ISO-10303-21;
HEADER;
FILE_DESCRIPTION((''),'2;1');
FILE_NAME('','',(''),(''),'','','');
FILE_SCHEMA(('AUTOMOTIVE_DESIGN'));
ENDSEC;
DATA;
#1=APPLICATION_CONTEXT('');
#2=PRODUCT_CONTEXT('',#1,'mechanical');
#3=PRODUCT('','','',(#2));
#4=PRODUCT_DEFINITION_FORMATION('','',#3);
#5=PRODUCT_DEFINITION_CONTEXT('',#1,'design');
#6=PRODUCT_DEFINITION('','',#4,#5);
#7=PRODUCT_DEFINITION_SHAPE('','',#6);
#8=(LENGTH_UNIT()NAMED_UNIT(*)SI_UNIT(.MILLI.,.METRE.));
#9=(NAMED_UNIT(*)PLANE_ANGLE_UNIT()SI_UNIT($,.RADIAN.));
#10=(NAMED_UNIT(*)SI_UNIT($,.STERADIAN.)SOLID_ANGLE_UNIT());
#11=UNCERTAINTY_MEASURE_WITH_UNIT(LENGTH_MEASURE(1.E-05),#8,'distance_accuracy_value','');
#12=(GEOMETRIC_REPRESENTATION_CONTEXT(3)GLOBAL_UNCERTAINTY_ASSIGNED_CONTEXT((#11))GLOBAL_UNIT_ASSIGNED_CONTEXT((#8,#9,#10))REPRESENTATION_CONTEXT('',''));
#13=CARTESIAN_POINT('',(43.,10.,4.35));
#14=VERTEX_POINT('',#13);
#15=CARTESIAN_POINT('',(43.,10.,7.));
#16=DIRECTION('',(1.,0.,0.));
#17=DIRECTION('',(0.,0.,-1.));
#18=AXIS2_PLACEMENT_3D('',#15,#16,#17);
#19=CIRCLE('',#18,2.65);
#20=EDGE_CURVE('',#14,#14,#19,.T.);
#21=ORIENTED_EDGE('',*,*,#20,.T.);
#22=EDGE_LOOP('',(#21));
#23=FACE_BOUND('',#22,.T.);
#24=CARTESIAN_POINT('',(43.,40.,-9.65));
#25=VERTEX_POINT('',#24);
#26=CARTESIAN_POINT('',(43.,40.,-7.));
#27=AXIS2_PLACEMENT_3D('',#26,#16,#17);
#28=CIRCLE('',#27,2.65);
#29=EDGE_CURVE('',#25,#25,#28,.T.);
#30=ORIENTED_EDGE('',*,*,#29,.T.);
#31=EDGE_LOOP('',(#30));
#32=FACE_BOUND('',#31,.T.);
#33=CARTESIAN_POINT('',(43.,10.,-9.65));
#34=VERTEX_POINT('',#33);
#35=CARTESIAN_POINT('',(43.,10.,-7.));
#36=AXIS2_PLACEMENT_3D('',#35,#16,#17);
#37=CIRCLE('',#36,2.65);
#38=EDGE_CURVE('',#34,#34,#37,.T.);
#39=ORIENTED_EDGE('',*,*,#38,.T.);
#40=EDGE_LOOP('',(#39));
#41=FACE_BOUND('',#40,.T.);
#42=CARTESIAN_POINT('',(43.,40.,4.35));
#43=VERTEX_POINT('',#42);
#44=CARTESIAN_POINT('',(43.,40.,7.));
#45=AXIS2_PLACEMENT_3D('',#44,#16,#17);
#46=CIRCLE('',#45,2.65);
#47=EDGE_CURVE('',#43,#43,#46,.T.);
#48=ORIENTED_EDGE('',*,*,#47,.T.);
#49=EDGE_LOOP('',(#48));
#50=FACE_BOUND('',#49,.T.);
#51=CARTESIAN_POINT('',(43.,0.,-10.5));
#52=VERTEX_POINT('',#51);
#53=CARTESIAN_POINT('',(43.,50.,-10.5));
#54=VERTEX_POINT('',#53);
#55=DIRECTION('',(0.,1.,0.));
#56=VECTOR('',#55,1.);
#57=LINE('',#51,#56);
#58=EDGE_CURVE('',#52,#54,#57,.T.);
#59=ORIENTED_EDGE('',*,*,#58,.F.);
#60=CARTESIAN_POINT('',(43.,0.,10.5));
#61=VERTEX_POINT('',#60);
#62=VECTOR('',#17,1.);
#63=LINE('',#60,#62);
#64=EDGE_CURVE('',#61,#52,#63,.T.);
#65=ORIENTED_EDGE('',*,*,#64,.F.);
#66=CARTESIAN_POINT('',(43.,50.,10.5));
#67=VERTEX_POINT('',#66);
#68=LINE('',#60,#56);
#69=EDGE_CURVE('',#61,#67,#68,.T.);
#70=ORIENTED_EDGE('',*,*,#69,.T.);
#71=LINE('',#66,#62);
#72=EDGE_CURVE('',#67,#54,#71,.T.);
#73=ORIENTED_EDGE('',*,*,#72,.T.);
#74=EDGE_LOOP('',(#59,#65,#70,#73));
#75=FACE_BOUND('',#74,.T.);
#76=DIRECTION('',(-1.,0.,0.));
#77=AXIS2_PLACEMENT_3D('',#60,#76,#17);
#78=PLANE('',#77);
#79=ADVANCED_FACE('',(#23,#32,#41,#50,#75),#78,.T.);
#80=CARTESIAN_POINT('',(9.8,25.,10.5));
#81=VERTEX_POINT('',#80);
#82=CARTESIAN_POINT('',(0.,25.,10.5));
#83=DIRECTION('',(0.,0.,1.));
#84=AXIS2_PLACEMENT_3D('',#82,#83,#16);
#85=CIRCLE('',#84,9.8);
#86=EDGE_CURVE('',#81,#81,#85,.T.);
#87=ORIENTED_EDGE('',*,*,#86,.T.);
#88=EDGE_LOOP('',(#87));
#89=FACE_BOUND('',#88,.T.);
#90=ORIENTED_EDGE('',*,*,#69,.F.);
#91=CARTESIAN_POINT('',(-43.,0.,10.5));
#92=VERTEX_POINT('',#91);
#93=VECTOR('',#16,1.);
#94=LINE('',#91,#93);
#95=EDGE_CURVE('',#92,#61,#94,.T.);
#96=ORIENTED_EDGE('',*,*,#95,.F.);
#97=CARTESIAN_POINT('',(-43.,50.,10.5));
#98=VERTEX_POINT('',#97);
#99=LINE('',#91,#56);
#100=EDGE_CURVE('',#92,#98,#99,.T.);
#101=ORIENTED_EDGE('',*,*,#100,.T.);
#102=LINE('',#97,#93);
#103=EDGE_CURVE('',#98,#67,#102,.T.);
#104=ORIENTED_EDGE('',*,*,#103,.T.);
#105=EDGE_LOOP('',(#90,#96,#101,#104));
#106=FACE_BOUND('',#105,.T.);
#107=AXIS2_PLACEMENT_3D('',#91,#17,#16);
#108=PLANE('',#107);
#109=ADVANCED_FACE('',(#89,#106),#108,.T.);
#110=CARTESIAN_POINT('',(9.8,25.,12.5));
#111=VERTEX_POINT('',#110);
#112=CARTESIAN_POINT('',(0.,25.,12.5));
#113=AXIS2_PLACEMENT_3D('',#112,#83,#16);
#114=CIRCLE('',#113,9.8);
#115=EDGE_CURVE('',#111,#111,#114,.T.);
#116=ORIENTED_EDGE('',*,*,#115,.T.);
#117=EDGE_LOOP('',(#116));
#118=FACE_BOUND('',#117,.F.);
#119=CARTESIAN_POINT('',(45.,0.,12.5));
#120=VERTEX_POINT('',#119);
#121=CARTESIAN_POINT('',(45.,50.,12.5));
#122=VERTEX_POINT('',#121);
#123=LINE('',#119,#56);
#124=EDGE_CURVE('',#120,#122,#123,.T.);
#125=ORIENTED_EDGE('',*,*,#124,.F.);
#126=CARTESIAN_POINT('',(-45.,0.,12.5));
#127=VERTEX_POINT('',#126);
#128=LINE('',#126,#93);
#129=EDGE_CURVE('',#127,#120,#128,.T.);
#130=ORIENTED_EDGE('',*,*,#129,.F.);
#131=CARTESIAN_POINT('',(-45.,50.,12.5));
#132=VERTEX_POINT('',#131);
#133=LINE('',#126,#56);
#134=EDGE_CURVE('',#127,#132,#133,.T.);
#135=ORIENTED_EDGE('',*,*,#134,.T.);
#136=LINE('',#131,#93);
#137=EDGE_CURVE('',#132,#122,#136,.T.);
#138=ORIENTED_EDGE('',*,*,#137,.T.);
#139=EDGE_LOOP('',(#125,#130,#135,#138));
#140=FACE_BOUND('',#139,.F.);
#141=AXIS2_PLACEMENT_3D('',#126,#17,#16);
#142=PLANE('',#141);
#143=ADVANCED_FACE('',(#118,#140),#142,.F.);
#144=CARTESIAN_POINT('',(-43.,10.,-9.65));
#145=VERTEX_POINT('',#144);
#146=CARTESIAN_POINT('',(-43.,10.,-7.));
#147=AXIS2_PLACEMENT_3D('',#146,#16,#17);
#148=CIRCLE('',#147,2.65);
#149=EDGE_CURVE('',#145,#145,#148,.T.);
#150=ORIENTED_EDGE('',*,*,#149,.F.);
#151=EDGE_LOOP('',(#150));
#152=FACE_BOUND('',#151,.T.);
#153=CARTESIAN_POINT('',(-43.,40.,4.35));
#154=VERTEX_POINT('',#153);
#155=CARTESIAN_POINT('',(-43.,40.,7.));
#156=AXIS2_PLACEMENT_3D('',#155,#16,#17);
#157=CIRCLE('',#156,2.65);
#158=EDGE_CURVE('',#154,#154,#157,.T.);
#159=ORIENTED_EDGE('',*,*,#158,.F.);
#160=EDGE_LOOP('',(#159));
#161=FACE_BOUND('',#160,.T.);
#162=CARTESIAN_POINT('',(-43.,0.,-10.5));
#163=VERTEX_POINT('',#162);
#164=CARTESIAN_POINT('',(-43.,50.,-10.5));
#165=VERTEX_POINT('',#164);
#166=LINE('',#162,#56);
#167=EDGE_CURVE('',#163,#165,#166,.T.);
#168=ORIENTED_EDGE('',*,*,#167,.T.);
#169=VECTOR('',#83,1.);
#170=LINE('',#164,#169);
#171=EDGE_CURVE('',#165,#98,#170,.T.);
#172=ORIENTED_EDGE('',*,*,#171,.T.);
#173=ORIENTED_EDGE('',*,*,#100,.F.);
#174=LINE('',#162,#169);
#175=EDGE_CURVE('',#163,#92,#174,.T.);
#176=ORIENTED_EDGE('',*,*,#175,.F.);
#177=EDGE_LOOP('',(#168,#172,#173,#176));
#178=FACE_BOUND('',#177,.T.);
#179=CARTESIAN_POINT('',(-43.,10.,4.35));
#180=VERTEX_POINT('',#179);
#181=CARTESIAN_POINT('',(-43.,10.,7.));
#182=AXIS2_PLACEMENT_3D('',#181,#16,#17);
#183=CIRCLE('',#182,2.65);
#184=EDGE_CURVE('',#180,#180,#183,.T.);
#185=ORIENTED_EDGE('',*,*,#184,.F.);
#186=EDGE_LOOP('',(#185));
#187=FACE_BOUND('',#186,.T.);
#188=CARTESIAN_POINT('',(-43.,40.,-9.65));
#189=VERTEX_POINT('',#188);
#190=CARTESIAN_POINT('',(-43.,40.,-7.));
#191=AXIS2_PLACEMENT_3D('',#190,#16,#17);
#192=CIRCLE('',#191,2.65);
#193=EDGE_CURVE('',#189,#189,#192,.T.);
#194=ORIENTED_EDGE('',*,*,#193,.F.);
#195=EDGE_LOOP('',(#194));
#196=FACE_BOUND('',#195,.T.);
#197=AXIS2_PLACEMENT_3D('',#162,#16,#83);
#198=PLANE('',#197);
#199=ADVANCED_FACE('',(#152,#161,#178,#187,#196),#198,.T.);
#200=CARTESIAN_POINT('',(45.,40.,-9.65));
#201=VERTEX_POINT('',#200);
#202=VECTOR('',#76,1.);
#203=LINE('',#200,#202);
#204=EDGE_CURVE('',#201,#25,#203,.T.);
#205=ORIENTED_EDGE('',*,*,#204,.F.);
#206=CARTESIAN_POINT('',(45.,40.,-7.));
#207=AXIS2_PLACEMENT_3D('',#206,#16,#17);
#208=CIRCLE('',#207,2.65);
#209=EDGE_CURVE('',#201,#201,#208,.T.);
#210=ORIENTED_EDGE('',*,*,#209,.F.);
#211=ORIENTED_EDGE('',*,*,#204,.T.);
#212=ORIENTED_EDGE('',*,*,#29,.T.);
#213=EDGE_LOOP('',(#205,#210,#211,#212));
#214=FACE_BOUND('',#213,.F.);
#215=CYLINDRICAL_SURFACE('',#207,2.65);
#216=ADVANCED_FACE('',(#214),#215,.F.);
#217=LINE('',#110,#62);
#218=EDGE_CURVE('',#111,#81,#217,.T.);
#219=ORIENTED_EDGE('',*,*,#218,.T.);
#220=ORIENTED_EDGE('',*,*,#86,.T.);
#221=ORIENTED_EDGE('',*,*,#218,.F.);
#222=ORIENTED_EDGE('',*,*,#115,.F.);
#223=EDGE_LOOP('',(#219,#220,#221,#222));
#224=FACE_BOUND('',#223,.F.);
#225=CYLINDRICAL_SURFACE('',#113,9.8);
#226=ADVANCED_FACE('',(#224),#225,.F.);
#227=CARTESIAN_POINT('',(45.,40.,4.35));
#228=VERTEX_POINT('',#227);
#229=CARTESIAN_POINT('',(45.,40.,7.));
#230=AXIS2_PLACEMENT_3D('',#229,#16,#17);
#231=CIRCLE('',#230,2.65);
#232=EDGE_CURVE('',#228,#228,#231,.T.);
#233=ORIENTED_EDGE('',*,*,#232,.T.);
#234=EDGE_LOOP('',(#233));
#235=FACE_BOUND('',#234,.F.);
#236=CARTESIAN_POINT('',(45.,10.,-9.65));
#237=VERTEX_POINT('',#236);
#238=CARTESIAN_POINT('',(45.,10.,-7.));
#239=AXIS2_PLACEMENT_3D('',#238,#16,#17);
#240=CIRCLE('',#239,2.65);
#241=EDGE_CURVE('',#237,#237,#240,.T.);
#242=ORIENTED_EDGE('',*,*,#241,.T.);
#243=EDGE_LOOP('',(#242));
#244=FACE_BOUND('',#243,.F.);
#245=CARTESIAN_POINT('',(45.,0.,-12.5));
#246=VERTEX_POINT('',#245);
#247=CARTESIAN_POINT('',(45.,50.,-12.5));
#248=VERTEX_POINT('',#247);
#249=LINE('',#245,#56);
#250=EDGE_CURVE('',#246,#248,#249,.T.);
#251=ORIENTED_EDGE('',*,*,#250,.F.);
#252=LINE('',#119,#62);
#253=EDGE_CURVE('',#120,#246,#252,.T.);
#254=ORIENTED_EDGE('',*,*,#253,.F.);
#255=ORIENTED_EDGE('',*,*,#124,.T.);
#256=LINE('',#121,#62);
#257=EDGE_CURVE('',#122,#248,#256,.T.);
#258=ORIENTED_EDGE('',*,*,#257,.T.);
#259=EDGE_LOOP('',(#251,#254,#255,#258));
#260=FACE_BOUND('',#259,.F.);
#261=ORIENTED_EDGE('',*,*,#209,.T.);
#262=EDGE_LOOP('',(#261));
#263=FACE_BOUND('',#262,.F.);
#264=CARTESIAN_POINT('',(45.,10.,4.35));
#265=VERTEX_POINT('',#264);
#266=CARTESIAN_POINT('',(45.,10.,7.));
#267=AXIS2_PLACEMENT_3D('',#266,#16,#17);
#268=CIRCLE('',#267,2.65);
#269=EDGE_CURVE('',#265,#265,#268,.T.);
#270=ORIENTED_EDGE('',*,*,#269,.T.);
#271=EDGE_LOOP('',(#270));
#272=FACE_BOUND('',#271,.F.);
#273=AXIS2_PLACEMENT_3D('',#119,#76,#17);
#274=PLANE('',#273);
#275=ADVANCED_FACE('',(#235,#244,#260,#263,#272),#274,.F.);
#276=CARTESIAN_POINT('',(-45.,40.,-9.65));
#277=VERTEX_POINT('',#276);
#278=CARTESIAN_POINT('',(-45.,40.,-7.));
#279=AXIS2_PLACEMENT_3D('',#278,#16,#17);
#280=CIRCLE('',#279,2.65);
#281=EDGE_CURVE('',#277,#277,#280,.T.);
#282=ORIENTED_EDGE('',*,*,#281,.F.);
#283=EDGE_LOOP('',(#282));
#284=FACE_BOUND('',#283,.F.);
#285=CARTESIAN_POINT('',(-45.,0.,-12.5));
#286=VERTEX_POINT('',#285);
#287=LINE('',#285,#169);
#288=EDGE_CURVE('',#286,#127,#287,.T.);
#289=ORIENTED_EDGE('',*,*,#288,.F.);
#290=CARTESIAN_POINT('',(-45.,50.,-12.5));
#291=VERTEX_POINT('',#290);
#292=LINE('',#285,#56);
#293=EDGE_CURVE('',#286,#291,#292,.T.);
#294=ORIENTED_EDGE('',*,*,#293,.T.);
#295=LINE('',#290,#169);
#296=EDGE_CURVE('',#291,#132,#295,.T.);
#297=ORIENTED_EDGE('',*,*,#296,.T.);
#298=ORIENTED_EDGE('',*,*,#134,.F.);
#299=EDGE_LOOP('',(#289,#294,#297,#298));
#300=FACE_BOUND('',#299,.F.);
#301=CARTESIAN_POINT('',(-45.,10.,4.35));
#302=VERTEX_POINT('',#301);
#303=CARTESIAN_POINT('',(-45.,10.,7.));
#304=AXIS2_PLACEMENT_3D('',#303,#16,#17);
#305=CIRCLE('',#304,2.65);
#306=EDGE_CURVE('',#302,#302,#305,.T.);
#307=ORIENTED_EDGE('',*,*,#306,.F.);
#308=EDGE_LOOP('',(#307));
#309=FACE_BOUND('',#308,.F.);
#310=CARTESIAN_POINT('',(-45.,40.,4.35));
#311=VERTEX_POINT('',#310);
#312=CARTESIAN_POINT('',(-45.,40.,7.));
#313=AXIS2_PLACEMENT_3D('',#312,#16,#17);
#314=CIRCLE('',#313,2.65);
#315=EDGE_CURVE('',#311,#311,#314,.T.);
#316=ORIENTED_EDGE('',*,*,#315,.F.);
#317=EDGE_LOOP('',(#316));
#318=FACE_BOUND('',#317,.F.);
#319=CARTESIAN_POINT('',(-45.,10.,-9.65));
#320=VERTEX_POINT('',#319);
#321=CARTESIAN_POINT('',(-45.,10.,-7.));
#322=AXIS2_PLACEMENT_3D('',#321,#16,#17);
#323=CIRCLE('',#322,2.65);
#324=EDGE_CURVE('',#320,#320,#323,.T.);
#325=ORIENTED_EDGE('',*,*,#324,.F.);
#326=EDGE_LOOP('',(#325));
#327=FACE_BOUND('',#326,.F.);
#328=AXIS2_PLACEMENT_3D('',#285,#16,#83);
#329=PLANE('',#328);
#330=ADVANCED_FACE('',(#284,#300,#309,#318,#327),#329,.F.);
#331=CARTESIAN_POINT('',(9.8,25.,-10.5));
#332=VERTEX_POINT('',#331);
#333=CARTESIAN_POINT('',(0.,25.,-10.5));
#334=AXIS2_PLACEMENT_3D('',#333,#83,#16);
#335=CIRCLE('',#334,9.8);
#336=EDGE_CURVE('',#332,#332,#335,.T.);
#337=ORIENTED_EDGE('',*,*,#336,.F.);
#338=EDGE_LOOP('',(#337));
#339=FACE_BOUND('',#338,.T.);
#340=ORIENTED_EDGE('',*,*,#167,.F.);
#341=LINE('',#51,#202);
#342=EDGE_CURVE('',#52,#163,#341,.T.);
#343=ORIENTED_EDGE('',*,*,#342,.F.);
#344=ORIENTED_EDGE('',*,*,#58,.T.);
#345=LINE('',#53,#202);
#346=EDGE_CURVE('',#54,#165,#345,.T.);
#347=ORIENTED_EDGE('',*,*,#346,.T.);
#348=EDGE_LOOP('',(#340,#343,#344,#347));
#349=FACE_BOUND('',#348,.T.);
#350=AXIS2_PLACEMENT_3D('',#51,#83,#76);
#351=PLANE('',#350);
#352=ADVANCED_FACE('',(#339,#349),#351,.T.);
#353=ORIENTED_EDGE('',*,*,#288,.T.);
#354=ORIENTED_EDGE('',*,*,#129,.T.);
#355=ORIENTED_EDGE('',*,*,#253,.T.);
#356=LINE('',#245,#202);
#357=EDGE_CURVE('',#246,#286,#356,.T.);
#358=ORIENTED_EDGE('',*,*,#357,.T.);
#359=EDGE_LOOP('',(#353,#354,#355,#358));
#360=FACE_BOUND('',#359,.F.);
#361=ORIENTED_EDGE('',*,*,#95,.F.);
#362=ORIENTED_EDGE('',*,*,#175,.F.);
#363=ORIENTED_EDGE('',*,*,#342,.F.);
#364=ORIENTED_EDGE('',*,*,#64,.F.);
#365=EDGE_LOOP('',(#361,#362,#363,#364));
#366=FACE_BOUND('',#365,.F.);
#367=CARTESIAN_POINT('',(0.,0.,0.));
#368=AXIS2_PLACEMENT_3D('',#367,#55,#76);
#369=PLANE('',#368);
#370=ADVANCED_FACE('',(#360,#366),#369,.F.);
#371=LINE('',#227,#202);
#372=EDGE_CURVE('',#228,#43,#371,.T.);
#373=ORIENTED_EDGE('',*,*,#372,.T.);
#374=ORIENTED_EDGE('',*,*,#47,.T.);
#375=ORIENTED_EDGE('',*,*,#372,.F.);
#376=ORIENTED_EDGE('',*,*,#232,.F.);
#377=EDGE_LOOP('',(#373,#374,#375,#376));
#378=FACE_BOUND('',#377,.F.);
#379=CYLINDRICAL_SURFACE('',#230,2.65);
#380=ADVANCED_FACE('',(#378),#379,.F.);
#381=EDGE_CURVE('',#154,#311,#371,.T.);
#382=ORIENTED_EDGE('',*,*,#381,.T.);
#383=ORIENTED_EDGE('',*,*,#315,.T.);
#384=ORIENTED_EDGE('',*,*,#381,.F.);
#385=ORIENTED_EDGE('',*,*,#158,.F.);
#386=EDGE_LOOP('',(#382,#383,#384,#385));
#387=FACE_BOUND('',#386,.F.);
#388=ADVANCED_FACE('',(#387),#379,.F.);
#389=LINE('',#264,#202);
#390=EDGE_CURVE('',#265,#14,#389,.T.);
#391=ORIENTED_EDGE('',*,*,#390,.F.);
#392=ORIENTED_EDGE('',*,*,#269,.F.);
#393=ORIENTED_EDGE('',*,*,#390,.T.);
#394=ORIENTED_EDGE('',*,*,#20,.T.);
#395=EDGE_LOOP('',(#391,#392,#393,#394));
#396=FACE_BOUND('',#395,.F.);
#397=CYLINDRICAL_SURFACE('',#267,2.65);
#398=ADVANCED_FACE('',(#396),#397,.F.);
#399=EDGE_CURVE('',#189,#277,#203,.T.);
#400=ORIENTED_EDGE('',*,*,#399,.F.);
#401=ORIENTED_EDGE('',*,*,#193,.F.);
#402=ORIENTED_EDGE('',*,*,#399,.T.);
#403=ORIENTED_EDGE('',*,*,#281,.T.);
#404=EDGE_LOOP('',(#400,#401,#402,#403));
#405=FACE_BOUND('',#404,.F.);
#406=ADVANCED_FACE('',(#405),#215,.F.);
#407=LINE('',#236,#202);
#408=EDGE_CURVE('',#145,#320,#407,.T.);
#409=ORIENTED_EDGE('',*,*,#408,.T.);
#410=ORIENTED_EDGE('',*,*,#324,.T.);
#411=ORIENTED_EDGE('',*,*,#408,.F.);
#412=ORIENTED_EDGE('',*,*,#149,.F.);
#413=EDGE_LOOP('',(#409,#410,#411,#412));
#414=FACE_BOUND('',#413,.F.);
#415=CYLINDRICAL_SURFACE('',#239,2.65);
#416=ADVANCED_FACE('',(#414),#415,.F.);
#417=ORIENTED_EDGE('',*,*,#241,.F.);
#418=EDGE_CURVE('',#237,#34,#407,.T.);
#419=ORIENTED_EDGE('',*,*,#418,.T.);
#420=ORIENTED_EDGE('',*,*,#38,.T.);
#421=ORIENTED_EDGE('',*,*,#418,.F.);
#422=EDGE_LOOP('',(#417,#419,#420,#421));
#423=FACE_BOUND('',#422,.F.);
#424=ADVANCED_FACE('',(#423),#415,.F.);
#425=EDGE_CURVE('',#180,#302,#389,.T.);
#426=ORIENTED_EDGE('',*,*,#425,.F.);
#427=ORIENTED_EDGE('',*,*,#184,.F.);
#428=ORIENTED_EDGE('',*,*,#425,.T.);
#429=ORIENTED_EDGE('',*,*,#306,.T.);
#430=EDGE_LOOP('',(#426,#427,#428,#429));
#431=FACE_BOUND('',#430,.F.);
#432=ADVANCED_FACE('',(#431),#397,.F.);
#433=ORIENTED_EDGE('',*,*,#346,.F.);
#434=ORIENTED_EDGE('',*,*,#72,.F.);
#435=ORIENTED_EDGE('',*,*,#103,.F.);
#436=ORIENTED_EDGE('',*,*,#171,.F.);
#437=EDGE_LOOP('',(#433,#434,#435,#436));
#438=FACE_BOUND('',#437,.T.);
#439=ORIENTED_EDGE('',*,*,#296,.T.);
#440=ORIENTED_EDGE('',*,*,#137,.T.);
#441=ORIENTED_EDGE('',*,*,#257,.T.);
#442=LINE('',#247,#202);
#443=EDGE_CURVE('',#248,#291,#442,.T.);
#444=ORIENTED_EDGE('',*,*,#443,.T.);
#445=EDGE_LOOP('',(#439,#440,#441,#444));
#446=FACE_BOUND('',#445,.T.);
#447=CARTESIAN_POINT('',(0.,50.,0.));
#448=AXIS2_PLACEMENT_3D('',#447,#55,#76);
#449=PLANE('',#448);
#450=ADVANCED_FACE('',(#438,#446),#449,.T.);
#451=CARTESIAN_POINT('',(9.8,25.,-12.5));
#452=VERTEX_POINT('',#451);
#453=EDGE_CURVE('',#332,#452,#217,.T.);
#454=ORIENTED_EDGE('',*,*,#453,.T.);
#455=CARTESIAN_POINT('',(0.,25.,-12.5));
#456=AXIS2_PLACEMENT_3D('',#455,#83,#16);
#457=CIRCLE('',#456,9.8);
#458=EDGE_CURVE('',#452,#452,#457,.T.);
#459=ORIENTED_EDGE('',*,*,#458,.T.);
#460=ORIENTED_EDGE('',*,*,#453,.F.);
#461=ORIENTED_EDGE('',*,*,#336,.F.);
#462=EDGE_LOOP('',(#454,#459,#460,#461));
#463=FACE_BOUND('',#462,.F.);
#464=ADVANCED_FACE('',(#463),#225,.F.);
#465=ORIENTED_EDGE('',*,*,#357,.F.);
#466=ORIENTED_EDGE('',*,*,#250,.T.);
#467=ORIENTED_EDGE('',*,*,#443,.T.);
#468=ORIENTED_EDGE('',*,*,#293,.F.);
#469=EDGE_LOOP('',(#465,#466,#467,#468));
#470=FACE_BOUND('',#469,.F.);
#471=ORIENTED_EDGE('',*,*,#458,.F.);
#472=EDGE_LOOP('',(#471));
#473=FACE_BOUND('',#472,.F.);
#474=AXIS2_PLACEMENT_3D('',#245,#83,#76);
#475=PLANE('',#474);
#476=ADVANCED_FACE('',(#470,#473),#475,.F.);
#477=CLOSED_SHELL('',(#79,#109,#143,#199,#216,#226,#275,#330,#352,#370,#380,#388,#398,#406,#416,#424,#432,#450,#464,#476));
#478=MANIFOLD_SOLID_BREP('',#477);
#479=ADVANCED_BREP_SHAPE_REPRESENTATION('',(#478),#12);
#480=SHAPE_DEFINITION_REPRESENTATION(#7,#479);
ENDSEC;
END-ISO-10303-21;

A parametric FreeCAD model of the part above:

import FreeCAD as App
import Part
import Sketcher
from FreeCAD import Vector
Q = App.Units.Quantity


def add_polygon(sketch, points):
    """Adds a closed chain of lines whose ends are joined by coincident constraints."""
    first, n = sketch.GeometryCount, len(points)
    for a, b in zip(points, points[1:] + points[:1]):
        sketch.addGeometry(Part.LineSegment(App.Vector(*a, 0), App.Vector(*b, 0)), False)
    for i in range(n):
        sketch.addConstraint(Sketcher.Constraint("Coincident", first + i, 2, first + (i + 1) % n, 1))

doc = App.newDocument("Part")
body = doc.addObject("PartDesign::Body", "Body")

sketch1 = body.newObject("Sketcher::SketchObject", "Sketch")
sketch1.AttachmentSupport = (doc.getObject("XZ_Plane"), [""])
sketch1.MapMode = "FlatFace"
add_polygon(sketch1, [(-45, -12), (-45, 12), (45, 12), (45, -12)])
add_polygon(sketch1, [(43, 10), (-43, 10), (-43, -10), (43, -10)])
sketch1.addConstraint([
    Sketcher.Constraint("Vertical", 0),
    Sketcher.Constraint("Horizontal", 1),
    Sketcher.Constraint("Vertical", 2),
    Sketcher.Constraint("Horizontal", 3),
    Sketcher.Constraint("Horizontal", 4),
    Sketcher.Constraint("Vertical", 5),
    Sketcher.Constraint("Horizontal", 6),
    Sketcher.Constraint("Vertical", 7),
    Sketcher.Constraint("Symmetric", 0, 2, 2, 2, -1, 1),
    Sketcher.Constraint("Symmetric", 4, 2, 6, 2, -1, 1),
    Sketcher.Constraint("DistanceX", 1, 1, 1, 2, Q("90 mm")),
    Sketcher.Constraint("DistanceX", 4, 2, 4, 1, Q("86 mm")),
    Sketcher.Constraint("DistanceY", 0, 1, 0, 2, Q("25 mm")),
    Sketcher.Constraint("DistanceY", 5, 2, 5, 1, Q("21 mm")),
])
pad1 = body.newObject("PartDesign::Pad", "Pad")
pad1.Profile = sketch1
pad1.Length = 50
pad1.Reversed = True

sketch2 = body.newObject("Sketcher::SketchObject", "Sketch001")
sketch2.AttachmentSupport = (doc.getObject("XY_Plane"), [""])
sketch2.MapMode = "FlatFace"
sketch2.AttachmentOffset = App.Placement(Vector(0, 0, 12.5), App.Rotation())
sketch2.addGeometry(Part.Circle(Vector(0, 25, 0), Vector(0, 0, 1), 10), False)
sketch2.addConstraint([
    Sketcher.Constraint("PointOnObject", 0, 3, -2),
    Sketcher.Constraint("Diameter", 0, Q("19.6 mm")),
    Sketcher.Constraint("DistanceY", -1, 1, 0, 3, Q("25 mm")),
])
pocket1 = body.newObject("PartDesign::Pocket", "Pocket")
pocket1.Profile = sketch2
pocket1.Length = 29.05

sketch3 = body.newObject("Sketcher::SketchObject", "Sketch002")
sketch3.AttachmentSupport = (doc.getObject("YZ_Plane"), [""])
sketch3.MapMode = "FlatFace"
sketch3.AttachmentOffset = App.Placement(Vector(0, 0, 45), App.Rotation())
sketch3.addGeometry([
    Part.Circle(Vector(10, -7, 0), Vector(0, 0, 1), 2.6),
    Part.Circle(Vector(10, 7, 0), Vector(0, 0, 1), 2.6),
    Part.Circle(Vector(40, -7, 0), Vector(0, 0, 1), 2.6),
    Part.Circle(Vector(40, 7, 0), Vector(0, 0, 1), 2.6),
], False)
sketch3.addConstraint([
    Sketcher.Constraint("Equal", 0, 1),
    Sketcher.Constraint("Equal", 1, 2),
    Sketcher.Constraint("Equal", 2, 3),
    Sketcher.Constraint("Symmetric", 0, 3, 1, 3, -1),
    Sketcher.Constraint("Symmetric", 2, 3, 3, 3, -1),
    Sketcher.Constraint("Horizontal", 0, 3, 2, 3),
    Sketcher.Constraint("Diameter", 0, Q("5.3 mm")),
    Sketcher.Constraint("DistanceX", -1, 1, 0, 3, Q("10 mm")),
    Sketcher.Constraint("DistanceY", 0, 3, -1, 1, Q("7 mm")),
    Sketcher.Constraint("DistanceX", -1, 1, 2, 3, Q("40 mm")),
])
pocket2 = body.newObject("PartDesign::Pocket", "Pocket001")
pocket2.Profile = sketch3
pocket2.Length = 143.35

doc.recompute()
